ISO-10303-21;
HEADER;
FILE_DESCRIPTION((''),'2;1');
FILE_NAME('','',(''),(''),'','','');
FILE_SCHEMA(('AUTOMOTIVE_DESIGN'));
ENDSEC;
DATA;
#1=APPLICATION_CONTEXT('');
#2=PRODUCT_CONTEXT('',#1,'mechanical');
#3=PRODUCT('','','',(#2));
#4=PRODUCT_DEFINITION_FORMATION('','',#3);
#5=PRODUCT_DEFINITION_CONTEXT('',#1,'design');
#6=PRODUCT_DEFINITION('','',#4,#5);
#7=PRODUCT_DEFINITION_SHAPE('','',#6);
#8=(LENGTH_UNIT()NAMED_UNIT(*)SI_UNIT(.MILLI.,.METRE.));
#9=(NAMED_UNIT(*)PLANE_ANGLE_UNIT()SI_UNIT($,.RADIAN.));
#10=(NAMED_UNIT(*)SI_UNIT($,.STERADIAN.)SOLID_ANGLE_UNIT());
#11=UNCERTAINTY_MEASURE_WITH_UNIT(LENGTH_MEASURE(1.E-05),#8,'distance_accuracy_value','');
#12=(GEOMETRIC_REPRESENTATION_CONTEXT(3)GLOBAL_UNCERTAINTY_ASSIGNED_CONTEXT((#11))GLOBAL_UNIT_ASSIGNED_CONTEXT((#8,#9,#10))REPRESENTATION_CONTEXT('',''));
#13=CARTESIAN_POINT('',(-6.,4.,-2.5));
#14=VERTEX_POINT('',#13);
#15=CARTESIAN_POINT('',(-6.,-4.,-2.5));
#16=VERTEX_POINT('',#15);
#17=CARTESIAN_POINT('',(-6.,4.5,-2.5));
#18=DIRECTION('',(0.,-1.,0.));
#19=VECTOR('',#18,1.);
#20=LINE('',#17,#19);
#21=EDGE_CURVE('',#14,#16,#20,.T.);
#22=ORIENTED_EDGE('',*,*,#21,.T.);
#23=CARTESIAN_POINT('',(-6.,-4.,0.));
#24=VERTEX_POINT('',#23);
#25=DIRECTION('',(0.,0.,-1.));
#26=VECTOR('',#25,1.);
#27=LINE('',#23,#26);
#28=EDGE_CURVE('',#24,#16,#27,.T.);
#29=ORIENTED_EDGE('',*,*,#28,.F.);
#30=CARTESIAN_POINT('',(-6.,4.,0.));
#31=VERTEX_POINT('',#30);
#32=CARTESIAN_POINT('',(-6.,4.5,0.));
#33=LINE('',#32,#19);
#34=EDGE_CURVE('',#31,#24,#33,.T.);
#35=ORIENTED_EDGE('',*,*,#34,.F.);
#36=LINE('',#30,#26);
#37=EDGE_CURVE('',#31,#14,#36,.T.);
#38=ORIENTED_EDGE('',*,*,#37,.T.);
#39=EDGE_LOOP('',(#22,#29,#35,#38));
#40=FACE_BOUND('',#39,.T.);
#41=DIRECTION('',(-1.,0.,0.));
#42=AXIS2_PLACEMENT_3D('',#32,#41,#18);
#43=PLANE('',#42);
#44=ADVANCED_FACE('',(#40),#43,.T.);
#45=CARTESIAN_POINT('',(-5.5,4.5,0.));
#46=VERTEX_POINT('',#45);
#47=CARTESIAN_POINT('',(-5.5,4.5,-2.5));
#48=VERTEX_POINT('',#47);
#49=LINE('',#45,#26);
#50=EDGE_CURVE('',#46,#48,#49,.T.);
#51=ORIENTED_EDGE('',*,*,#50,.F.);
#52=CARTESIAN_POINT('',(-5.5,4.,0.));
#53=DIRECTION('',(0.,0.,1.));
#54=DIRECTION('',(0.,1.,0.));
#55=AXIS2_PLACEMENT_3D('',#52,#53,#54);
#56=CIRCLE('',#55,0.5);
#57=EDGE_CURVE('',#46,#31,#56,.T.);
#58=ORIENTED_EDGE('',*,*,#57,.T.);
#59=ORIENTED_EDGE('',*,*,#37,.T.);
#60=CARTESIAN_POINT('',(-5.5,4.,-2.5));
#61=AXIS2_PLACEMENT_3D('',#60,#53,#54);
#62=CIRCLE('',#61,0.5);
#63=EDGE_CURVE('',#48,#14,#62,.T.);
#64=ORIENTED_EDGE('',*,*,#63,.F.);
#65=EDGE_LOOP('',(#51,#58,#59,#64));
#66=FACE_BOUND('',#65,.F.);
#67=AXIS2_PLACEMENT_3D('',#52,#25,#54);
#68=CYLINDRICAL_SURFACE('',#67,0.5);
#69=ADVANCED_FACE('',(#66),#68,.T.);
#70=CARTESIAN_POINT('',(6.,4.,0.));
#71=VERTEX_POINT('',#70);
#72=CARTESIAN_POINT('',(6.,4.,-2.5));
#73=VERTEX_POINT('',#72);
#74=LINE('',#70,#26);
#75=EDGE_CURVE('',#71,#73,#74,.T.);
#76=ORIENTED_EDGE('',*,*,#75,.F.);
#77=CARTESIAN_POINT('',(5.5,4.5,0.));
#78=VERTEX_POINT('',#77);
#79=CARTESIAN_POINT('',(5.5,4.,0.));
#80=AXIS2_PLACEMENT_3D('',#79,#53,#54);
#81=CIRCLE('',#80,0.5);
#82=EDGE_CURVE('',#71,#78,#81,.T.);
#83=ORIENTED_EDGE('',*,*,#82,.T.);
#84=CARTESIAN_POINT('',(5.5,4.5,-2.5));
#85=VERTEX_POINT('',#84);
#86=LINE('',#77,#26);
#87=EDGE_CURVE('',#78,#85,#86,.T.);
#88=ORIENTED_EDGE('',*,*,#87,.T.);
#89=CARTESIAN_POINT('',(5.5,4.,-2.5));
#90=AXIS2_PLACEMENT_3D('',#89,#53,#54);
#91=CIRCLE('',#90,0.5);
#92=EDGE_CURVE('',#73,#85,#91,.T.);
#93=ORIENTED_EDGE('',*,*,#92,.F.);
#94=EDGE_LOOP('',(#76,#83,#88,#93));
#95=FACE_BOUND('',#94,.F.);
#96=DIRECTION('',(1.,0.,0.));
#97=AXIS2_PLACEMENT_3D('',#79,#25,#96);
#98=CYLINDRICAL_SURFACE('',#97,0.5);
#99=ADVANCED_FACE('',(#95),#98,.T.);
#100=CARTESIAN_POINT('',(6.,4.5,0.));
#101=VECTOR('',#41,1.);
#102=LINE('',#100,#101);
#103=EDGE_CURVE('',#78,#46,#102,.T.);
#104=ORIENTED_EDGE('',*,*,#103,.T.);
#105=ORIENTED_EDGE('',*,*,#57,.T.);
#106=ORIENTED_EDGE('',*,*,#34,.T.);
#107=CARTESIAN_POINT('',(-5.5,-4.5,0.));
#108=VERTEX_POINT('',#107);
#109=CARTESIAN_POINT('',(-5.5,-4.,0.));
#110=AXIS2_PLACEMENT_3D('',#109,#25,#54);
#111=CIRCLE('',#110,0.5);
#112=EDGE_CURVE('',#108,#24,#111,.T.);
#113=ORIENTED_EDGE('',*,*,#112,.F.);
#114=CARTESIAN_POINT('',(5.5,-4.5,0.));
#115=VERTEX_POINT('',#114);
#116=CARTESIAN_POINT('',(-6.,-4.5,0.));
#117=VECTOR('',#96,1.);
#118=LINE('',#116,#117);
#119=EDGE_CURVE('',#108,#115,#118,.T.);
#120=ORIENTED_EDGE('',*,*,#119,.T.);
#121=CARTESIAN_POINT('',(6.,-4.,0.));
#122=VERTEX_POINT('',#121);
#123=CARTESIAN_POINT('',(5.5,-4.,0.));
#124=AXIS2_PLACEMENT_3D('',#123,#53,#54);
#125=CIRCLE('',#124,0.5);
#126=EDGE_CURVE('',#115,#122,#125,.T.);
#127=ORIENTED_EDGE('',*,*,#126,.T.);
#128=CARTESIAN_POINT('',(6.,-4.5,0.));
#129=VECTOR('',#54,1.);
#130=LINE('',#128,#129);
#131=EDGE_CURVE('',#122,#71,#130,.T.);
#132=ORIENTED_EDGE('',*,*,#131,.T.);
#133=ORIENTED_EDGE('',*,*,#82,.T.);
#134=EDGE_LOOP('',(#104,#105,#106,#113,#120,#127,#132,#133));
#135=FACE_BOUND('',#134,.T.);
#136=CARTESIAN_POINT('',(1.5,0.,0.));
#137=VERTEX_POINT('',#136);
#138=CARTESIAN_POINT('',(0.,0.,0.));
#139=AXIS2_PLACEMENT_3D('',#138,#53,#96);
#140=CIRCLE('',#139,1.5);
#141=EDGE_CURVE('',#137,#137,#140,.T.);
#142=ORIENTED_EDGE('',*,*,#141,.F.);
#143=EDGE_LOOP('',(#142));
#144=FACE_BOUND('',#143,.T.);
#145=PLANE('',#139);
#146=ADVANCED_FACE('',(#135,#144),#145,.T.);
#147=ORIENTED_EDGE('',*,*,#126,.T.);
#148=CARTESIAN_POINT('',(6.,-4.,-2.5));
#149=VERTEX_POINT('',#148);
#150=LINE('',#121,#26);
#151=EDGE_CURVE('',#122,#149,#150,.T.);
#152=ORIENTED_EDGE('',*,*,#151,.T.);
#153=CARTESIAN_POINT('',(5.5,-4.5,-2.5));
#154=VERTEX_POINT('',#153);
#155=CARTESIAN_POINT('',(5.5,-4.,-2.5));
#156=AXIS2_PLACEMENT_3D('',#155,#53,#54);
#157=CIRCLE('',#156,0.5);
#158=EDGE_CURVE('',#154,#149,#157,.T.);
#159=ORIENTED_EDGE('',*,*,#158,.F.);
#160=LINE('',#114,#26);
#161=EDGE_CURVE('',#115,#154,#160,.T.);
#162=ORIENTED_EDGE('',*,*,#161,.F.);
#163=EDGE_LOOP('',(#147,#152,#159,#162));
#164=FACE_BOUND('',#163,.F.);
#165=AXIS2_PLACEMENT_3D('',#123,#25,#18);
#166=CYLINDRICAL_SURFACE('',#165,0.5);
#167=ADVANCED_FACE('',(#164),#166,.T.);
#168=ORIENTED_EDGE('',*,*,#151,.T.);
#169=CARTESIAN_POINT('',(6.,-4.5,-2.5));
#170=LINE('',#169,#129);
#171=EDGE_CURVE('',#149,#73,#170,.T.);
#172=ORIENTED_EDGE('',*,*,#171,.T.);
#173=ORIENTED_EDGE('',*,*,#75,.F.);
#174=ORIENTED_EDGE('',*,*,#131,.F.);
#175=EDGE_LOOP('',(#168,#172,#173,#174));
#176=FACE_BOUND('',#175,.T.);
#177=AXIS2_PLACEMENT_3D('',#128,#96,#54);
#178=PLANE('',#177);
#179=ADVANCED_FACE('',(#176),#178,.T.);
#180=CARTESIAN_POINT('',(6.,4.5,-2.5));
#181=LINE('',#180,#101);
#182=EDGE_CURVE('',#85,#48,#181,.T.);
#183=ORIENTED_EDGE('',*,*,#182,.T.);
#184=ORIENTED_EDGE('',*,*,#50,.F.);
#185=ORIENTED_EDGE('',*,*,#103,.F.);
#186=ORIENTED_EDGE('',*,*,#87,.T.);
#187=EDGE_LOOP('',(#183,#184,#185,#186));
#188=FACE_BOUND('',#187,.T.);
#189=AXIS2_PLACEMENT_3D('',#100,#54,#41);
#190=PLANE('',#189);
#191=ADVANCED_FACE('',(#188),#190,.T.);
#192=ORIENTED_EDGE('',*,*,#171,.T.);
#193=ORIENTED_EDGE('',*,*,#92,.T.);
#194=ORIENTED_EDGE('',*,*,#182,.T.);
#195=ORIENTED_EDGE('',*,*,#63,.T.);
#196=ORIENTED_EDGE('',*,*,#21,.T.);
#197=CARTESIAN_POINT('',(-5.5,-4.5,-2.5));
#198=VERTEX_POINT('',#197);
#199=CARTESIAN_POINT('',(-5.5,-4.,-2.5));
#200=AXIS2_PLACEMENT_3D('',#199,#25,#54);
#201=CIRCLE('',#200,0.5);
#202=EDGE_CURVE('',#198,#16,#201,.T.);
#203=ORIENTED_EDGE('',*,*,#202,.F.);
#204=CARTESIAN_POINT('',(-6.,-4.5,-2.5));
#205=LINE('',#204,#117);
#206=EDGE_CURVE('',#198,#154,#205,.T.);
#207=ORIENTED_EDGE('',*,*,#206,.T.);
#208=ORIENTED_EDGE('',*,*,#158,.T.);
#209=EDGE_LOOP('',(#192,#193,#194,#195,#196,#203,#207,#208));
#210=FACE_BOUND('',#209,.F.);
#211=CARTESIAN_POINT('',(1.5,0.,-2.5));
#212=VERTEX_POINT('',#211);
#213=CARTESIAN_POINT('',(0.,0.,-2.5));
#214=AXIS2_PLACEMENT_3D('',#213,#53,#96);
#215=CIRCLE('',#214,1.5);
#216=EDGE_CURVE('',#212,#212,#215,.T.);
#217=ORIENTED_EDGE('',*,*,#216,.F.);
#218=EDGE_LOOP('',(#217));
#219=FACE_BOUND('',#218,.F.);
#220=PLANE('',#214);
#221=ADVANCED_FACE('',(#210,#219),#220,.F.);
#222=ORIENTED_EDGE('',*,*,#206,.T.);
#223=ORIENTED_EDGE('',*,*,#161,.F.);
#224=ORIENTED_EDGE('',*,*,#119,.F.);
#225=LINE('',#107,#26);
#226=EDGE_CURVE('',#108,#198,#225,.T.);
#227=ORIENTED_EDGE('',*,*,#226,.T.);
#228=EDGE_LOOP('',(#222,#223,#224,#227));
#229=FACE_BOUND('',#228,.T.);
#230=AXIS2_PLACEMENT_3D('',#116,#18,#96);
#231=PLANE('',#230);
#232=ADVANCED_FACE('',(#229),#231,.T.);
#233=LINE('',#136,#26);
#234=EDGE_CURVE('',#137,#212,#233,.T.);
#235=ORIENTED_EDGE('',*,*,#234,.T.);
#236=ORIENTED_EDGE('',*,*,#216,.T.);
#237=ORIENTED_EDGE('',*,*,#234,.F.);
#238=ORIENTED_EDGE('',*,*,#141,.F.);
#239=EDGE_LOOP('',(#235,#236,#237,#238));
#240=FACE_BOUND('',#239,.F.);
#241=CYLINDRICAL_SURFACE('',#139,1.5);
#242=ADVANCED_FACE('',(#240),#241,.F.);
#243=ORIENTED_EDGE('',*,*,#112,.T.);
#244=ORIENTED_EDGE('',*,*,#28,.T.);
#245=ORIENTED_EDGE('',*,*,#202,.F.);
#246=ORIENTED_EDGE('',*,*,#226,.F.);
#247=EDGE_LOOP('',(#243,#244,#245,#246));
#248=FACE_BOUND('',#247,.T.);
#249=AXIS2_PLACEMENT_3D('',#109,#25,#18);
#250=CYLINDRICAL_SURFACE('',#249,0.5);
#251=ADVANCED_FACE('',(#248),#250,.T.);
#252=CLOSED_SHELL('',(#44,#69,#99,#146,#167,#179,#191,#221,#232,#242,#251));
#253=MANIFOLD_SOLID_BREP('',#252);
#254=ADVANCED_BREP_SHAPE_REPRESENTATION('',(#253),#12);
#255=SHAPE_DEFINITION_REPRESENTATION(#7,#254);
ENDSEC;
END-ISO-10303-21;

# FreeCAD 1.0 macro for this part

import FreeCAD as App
import Part
import Sketcher
Q = App.Units.Quantity


def edges_at(feature, points):
    """Names of the edges that pass closest to the given points."""
    edges = feature.Shape.Edges
    near = lambda p: min(range(len(edges)), key=lambda i: edges[i].distToShape(Part.Vertex(*p))[0])
    return sorted({f"Edge{near(p) + 1}" for p in points})


def add_polygon(sketch, points):
    """Adds a closed chain of lines whose ends are joined by coincident constraints."""
    first, n = sketch.GeometryCount, len(points)
    for a, b in zip(points, points[1:] + points[:1]):
        sketch.addGeometry(Part.LineSegment(App.Vector(*a, 0), App.Vector(*b, 0)), False)
    for i in range(n):
        sketch.addConstraint(Sketcher.Constraint("Coincident", first + i, 2, first + (i + 1) % n, 1))

doc = App.newDocument("Part")
params = doc.addObject("Spreadsheet::Sheet", "Params")
for row, (alias, value) in enumerate([
    ("sketch1_diameter", "3 mm"),
    ("sketch1_height", "9 mm"),
    ("pad1_length", "2.5 mm"),
    ("fillet_radius", "0.5 mm"),
], start=1):
    params.set(f"A{row}", alias)
    params.set(f"B{row}", "=" + value)
    params.setAlias(f"B{row}", alias)

body = doc.addObject("PartDesign::Body", "Body")

# Sketch on XY plane
sketch1 = body.newObject("Sketcher::SketchObject", "Sketch")
sketch1.AttachmentSupport = (doc.getObject("XY_Plane"), [""])
sketch1.MapMode = "FlatFace"
add_polygon(sketch1, [(-6, 4.5), (-6, -4.5), (6, -4.5), (6, 4.5)])  # lines 0-3
sketch1.addGeometry(Part.Circle(App.Vector(0, 0, 0), App.Vector(0, 0, 1), 1.5), False)  # 4
sketch1.addConstraint(Sketcher.Constraint("Vertical", 0))
sketch1.addConstraint(Sketcher.Constraint("Horizontal", 1))
sketch1.addConstraint(Sketcher.Constraint("Vertical", 2))
sketch1.addConstraint(Sketcher.Constraint("Horizontal", 3))
sketch1.addConstraint(Sketcher.Constraint("Coincident", 4, 3, -1, 1))
sketch1.addConstraint(Sketcher.Constraint("Symmetric", 0, 2, 2, 2, -1, 1))
sketch1.addConstraint(Sketcher.Constraint("Diameter", 4, Q("3 mm")))
sketch1.addConstraint(Sketcher.Constraint("DistanceX", 0, 2, -1, 1, Q("6 mm")))
sketch1.addConstraint(Sketcher.Constraint("DistanceY", 0, 2, 0, 1, Q("9 mm")))
sketch1.setExpression("Constraints[10]", "Params.sketch1_diameter")
sketch1.setExpression("Constraints[12]", "Params.sketch1_height")
pad1 = body.newObject("PartDesign::Pad", "Pad")
pad1.Profile = sketch1
pad1.setExpression("Length", "Params.pad1_length")
pad1.Reversed = True
doc.recompute()

fillet = body.newObject("PartDesign::Fillet", "Fillet")
fillet.Base = (pad1, edges_at(pad1, [
    (6, -4.5, -1.25),
    (-6, -4.5, -1.25),
    (-6, 4.5, -1.25),
    (6, 4.5, -1.25),
]))
fillet.setExpression("Radius", "Params.fillet_radius")

doc.recompute()
